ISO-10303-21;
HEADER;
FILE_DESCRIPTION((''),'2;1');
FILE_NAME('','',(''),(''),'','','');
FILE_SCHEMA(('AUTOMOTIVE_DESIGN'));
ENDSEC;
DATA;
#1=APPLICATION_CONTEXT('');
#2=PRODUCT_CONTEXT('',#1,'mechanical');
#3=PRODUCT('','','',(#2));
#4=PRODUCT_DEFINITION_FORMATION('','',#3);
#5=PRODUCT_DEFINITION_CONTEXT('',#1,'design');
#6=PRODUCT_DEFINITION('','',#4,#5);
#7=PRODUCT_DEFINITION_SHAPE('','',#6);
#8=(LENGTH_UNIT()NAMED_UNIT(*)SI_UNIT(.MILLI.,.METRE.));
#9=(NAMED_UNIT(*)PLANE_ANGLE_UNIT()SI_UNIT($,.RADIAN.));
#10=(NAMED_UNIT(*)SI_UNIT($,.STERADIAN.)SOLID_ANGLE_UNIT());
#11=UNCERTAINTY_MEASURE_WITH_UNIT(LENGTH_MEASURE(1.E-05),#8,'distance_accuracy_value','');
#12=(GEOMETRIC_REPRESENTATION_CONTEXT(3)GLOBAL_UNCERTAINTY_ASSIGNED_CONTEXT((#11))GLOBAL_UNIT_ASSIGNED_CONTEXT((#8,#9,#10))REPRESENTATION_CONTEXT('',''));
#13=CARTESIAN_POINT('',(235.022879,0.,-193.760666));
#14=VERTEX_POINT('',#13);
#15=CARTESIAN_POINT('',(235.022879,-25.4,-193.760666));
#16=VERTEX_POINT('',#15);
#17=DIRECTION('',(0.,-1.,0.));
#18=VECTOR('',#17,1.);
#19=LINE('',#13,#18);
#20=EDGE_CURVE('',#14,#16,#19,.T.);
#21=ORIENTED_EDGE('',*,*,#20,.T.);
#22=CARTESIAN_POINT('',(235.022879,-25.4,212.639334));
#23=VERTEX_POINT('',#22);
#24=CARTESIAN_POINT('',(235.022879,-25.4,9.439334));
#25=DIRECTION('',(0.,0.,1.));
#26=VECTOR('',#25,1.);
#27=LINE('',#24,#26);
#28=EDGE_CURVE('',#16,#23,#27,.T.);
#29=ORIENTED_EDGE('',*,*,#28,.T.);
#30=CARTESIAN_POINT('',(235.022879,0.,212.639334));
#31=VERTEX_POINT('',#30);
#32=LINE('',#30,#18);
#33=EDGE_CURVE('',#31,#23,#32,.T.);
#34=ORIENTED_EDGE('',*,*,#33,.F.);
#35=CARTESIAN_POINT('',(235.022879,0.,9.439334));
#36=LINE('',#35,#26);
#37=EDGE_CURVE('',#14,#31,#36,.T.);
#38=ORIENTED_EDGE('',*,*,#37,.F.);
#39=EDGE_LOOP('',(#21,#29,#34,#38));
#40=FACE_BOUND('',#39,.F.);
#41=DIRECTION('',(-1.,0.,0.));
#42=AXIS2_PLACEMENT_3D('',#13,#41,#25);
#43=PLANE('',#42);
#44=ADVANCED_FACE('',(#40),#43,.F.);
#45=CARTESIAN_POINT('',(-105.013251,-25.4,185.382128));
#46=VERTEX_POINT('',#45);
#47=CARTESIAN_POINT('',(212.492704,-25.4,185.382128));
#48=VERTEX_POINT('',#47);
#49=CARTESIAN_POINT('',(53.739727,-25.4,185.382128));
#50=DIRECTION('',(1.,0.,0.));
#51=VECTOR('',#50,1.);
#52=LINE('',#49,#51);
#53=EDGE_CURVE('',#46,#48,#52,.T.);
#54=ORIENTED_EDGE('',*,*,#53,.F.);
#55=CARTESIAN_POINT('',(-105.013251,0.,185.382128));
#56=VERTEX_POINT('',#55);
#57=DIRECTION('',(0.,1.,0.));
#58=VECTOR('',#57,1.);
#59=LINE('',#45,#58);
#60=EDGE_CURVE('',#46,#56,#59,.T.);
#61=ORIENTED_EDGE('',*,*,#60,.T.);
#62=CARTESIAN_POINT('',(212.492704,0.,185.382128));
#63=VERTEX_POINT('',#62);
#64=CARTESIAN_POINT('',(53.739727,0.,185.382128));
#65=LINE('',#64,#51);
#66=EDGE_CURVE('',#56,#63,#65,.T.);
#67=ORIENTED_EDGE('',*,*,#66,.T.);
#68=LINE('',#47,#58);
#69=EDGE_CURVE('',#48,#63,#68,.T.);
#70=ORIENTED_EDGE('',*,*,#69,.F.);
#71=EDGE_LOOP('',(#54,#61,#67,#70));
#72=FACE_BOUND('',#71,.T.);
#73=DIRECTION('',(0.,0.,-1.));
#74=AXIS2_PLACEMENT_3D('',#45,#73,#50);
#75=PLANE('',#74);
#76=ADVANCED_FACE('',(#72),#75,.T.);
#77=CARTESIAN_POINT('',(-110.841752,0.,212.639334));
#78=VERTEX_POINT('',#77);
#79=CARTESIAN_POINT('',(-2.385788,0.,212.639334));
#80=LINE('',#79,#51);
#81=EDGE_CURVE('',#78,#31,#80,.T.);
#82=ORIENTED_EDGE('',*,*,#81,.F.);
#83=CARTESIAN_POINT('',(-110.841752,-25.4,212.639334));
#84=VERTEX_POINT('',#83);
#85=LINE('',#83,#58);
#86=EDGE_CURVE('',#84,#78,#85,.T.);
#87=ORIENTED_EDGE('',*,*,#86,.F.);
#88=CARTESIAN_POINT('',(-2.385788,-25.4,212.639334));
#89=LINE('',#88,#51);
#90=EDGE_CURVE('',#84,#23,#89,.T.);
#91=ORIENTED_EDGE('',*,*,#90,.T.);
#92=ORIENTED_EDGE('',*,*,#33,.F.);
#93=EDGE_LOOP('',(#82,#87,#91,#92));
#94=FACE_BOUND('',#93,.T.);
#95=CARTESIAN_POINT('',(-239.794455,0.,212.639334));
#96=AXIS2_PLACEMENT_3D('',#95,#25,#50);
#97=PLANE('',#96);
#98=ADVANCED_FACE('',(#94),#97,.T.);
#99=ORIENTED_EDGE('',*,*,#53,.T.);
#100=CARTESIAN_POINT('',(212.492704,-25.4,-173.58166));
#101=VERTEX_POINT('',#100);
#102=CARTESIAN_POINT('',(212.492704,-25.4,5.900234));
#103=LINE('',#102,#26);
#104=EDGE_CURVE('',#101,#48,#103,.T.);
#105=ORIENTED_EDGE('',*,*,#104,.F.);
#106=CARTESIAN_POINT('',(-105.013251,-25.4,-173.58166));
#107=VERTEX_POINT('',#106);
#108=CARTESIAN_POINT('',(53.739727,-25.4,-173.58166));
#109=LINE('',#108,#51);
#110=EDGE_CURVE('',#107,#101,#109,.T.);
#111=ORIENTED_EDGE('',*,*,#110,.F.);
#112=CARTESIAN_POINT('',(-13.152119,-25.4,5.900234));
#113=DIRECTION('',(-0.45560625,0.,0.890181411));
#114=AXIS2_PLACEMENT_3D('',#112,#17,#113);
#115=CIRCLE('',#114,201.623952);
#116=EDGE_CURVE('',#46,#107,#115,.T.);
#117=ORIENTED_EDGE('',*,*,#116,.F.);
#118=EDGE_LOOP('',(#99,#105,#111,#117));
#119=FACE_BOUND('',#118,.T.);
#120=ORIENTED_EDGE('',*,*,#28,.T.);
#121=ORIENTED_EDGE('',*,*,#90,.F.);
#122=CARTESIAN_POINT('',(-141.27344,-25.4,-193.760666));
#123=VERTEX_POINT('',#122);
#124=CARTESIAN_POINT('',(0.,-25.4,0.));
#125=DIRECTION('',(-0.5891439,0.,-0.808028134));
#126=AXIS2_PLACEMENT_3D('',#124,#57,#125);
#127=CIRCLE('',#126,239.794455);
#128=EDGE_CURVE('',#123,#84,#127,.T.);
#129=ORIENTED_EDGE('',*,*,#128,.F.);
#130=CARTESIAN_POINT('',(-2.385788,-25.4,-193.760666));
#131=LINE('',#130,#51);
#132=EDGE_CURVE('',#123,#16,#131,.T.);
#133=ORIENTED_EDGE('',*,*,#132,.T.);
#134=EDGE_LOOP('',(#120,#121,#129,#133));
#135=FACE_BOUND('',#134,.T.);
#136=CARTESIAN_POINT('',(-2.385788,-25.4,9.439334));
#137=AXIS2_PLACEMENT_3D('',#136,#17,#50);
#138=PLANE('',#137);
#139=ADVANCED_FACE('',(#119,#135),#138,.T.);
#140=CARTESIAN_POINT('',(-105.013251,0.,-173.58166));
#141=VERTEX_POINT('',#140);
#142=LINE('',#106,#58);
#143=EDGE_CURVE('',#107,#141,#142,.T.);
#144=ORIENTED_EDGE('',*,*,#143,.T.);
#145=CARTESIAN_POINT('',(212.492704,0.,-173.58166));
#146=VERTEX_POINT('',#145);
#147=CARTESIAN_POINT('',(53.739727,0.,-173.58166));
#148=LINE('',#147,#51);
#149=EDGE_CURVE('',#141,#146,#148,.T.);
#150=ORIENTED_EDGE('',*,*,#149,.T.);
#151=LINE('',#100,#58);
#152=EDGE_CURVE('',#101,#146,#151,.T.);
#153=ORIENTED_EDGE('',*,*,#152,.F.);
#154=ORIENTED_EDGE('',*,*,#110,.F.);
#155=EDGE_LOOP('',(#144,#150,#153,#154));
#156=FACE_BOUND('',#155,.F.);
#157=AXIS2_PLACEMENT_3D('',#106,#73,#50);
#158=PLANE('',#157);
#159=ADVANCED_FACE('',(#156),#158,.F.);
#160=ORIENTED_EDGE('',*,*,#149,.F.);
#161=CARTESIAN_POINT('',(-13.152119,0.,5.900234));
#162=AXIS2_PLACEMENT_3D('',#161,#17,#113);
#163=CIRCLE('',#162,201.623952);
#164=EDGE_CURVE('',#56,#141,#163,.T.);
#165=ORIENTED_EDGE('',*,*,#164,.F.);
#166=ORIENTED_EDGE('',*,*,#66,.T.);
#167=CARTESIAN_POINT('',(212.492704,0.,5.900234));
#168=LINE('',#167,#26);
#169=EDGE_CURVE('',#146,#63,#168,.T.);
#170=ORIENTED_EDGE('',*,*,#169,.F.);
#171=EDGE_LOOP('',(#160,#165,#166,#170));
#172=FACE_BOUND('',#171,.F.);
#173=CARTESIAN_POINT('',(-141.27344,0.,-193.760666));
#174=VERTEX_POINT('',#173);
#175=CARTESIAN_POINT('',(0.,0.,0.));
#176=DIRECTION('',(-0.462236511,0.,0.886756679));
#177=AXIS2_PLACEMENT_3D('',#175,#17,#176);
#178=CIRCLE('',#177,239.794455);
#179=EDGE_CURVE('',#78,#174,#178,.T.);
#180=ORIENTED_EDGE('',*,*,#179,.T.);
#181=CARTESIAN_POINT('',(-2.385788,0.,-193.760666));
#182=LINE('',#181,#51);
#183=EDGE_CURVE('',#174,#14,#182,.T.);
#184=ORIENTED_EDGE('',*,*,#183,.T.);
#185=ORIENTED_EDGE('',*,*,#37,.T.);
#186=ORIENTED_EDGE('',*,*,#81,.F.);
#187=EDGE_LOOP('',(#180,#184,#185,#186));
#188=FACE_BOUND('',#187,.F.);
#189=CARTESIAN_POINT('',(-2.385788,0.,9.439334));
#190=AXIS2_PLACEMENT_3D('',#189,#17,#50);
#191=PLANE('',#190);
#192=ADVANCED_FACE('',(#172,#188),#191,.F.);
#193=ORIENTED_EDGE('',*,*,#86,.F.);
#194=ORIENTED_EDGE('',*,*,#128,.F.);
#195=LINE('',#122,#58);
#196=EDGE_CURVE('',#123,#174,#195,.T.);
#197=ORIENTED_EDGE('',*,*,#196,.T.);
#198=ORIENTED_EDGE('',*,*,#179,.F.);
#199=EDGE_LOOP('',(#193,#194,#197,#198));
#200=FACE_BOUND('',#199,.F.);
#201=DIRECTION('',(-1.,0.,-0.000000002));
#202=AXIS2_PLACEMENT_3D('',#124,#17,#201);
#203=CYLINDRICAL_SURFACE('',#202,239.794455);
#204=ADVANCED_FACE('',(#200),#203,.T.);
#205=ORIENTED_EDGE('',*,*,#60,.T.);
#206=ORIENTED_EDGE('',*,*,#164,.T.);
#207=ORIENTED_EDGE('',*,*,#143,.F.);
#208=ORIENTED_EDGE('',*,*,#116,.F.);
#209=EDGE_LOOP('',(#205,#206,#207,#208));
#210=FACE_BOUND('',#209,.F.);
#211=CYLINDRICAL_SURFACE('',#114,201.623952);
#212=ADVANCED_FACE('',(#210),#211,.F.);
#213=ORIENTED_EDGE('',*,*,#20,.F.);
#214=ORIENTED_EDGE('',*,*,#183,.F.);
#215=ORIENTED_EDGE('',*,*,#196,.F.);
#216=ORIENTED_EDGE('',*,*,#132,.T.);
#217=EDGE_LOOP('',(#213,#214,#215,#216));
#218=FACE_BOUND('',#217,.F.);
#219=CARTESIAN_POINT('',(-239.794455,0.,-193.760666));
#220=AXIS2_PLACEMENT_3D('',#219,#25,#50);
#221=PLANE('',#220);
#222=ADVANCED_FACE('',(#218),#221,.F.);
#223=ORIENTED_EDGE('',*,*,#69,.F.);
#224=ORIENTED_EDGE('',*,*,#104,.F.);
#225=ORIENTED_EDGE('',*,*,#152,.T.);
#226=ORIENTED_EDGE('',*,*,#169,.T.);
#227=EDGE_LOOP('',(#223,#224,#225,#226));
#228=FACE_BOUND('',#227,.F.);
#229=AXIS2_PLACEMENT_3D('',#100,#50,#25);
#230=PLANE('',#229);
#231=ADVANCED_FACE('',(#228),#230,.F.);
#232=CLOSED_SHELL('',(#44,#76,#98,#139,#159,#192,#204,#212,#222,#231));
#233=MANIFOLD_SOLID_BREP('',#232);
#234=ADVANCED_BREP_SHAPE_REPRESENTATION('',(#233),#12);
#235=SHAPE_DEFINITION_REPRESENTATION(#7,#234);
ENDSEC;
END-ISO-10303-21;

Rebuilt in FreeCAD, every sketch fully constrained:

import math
import FreeCAD as App
import Part
import Sketcher
from FreeCAD import Vector
Q = App.Units.Quantity


def add_polygon(sketch, points):
    """Adds a closed chain of lines whose ends are joined by coincident constraints."""
    first, n = sketch.GeometryCount, len(points)
    for a, b in zip(points, points[1:] + points[:1]):
        sketch.addGeometry(Part.LineSegment(App.Vector(*a, 0), App.Vector(*b, 0)), False)
    for i in range(n):
        sketch.addConstraint(Sketcher.Constraint("Coincident", first + i, 2, first + (i + 1) % n, 1))

doc = App.newDocument("Part")
params = doc.addObject("Spreadsheet::Sheet", "Params")
for row, (alias, value) in enumerate([
    ("sketch1_height", "16 in"),
    ("pad1_length", "1 in"),
    ("pocket1_length", "1 in"),
    ("pocket2_length", "1 in"),
    ("pocket3_length", "1 in"),
], start=1):
    params.set(f"A{row}", alias)
    params.set(f"B{row}", "=" + value)
    params.setAlias(f"B{row}", alias)

body = doc.addObject("PartDesign::Body", "Body")

# Sketch on XZ plane
sketch1 = doc.addObject("Sketcher::SketchObject", "Sketch")
body.addObject(sketch1)
sketch1.AttachmentSupport = (doc.XZ_Plane, [""])
sketch1.MapMode = "FlatFace"
add_polygon(sketch1, [(-239.794455, 212.639334), (-239.794455, -193.760666), (235.022879, -193.760666), (235.022879, 212.639334)])  # lines 0-3
sketch1.addConstraint([
    Sketcher.Constraint("Vertical", 0),
    Sketcher.Constraint("Horizontal", 1),
    Sketcher.Constraint("Vertical", 2),
    Sketcher.Constraint("Horizontal", 3),
    Sketcher.Constraint("DistanceY", 0, 2, 0, 1, Q("16 in")),
    Sketcher.Constraint("DistanceX", 1, 1, 1, 2, Q("474.817334 mm")),
    Sketcher.Constraint("DistanceX", -1, 1, 1, 2, Q("235.022879 mm")),
    Sketcher.Constraint("DistanceY", 0, 2, -1, 1, Q("193.760666 mm")),
])
sketch1.setExpression("Constraints[8]", "Params.sketch1_height")
pad1 = doc.addObject("PartDesign::Pad", "Pad")
body.addObject(pad1)
pad1.Profile = sketch1
pad1.setExpression("Length", "Params.pad1_length")

# Sketch on XZ plane
sketch2 = doc.addObject("Sketcher::SketchObject", "Sketch001")
body.addObject(sketch2)
sketch2.AttachmentSupport = (doc.XZ_Plane, [""])
sketch2.MapMode = "FlatFace"
sketch2.AttachmentOffset = App.Placement(Vector(0, 0, 1 * 25.4), App.Rotation())
sketch2.addGeometry([
    Part.ArcOfCircle(Part.Circle(Vector(0, 0, 0), Vector(0, 0, 1), 239.794455), math.radians(117.53152), math.radians(180)),  # 0
    Part.LineSegment(Vector(-110.841752, 212.639334, 0), Vector(-239.794455, 212.639334, 0)),  # 1
    Part.LineSegment(Vector(-239.794455, 212.639334, 0), Vector(-239.794455, -0.000001, 0)),  # 2
    Part.LineSegment(Vector(-239.794455, -193.760666, 0), Vector(-141.27344, -193.760666, 0)),  # 3
    Part.ArcOfCircle(Part.Circle(Vector(0, 0, 0), Vector(0, 0, 1), 239.794455), math.radians(-180), math.radians(-126.09628)),  # 4
    Part.LineSegment(Vector(-239.794455, -0.000001, 0), Vector(-239.794455, -193.760666, 0)),  # 5
], False)
sketch2.addConstraint([
    Sketcher.Constraint("Coincident", 0, 1, 1, 1),
    Sketcher.Constraint("Coincident", 1, 2, 2, 1),
    Sketcher.Constraint("Tangent", 2, 2, 0, 2),
    Sketcher.Constraint("Coincident", 3, 2, 4, 2),
    Sketcher.Constraint("Tangent", 4, 1, 5, 1),
    Sketcher.Constraint("Coincident", 5, 2, 3, 1),
    Sketcher.Constraint("Horizontal", 1),
    Sketcher.Constraint("Vertical", 2),
    Sketcher.Constraint("Horizontal", 3),
    Sketcher.Constraint("Vertical", 5),
    Sketcher.Constraint("Coincident", 0, 3, -1, 1),
    Sketcher.Constraint("Coincident", 4, 3, -1, 1),
    Sketcher.Constraint("Equal", 0, 4),
    Sketcher.Constraint("DistanceY", 3, 2, 0, 1, Q("16 in")),
    Sketcher.Constraint("Radius", 0, Q("239.794455 mm")),
    Sketcher.Constraint("DistanceX", 1, 2, 1, 1, Q("128.952703 mm")),
])
pocket1 = doc.addObject("PartDesign::Pocket", "Pocket")
body.addObject(pocket1)
pocket1.Profile = sketch2
pocket1.setExpression("Length", "Params.pocket1_length")

# Sketch on XZ plane
sketch3 = doc.addObject("Sketcher::SketchObject", "Sketch002")
body.addObject(sketch3)
sketch3.AttachmentSupport = (doc.XZ_Plane, [""])
sketch3.MapMode = "FlatFace"
sketch3.AttachmentOffset = App.Placement(Vector(0, 0, 1 * 25.4), App.Rotation())
add_polygon(sketch3, [(-105.013251, 185.382128), (-105.013251, -173.58166), (212.492704, -173.58166), (212.492704, 185.382128)])  # lines 0-3
sketch3.addConstraint([
    Sketcher.Constraint("Vertical", 0),
    Sketcher.Constraint("Horizontal", 1),
    Sketcher.Constraint("Vertical", 2),
    Sketcher.Constraint("Horizontal", 3),
    Sketcher.Constraint("DistanceX", 1, 1, 1, 2, Q("317.505956 mm")),
    Sketcher.Constraint("DistanceY", 0, 2, 0, 1, Q("358.963788 mm")),
    Sketcher.Constraint("DistanceX", 0, 2, -1, 1, Q("105.013251 mm")),
    Sketcher.Constraint("DistanceY", 0, 2, -1, 1, Q("173.58166 mm")),
])
pocket2 = doc.addObject("PartDesign::Pocket", "Pocket001")
body.addObject(pocket2)
pocket2.Profile = sketch3
pocket2.setExpression("Length", "Params.pocket2_length")

# Sketch on XZ plane
sketch4 = doc.addObject("Sketcher::SketchObject", "Sketch003")
body.addObject(sketch4)
sketch4.AttachmentSupport = (doc.XZ_Plane, [""])
sketch4.MapMode = "FlatFace"
sketch4.AttachmentOffset = App.Placement(Vector(0, 0, 1 * 25.4), App.Rotation())
sketch4.addGeometry([
    Part.LineSegment(Vector(-105.013251, -173.58166, 0), Vector(-105.013251, 185.382128, 0)),
    Part.ArcOfCircle(Part.Circle(Vector(-13.152119, 5.900234, 0), Vector(0, 0, 1), 201.623952), math.radians(117.103948), math.radians(242.896052)),
], False)
sketch4.addConstraint([
    Sketcher.Constraint("Coincident", 0, 1, 1, 2),
    Sketcher.Constraint("Coincident", 1, 1, 0, 2),
    Sketcher.Constraint("Vertical", 0),
    Sketcher.Constraint("Radius", 1, Q("201.623952 mm")),
    Sketcher.Constraint("DistanceX", 1, 3, -1, 1, Q("0.5178 in")),
    Sketcher.Constraint("DistanceY", 0, 1, 0, 2, Q("358.963788 mm")),
    Sketcher.Constraint("DistanceY", 0, 1, -1, 1, Q("173.58166 mm")),
])
pocket3 = doc.addObject("PartDesign::Pocket", "Pocket002")
body.addObject(pocket3)
pocket3.Profile = sketch4
pocket3.setExpression("Length", "Params.pocket3_length")

doc.recompute()
